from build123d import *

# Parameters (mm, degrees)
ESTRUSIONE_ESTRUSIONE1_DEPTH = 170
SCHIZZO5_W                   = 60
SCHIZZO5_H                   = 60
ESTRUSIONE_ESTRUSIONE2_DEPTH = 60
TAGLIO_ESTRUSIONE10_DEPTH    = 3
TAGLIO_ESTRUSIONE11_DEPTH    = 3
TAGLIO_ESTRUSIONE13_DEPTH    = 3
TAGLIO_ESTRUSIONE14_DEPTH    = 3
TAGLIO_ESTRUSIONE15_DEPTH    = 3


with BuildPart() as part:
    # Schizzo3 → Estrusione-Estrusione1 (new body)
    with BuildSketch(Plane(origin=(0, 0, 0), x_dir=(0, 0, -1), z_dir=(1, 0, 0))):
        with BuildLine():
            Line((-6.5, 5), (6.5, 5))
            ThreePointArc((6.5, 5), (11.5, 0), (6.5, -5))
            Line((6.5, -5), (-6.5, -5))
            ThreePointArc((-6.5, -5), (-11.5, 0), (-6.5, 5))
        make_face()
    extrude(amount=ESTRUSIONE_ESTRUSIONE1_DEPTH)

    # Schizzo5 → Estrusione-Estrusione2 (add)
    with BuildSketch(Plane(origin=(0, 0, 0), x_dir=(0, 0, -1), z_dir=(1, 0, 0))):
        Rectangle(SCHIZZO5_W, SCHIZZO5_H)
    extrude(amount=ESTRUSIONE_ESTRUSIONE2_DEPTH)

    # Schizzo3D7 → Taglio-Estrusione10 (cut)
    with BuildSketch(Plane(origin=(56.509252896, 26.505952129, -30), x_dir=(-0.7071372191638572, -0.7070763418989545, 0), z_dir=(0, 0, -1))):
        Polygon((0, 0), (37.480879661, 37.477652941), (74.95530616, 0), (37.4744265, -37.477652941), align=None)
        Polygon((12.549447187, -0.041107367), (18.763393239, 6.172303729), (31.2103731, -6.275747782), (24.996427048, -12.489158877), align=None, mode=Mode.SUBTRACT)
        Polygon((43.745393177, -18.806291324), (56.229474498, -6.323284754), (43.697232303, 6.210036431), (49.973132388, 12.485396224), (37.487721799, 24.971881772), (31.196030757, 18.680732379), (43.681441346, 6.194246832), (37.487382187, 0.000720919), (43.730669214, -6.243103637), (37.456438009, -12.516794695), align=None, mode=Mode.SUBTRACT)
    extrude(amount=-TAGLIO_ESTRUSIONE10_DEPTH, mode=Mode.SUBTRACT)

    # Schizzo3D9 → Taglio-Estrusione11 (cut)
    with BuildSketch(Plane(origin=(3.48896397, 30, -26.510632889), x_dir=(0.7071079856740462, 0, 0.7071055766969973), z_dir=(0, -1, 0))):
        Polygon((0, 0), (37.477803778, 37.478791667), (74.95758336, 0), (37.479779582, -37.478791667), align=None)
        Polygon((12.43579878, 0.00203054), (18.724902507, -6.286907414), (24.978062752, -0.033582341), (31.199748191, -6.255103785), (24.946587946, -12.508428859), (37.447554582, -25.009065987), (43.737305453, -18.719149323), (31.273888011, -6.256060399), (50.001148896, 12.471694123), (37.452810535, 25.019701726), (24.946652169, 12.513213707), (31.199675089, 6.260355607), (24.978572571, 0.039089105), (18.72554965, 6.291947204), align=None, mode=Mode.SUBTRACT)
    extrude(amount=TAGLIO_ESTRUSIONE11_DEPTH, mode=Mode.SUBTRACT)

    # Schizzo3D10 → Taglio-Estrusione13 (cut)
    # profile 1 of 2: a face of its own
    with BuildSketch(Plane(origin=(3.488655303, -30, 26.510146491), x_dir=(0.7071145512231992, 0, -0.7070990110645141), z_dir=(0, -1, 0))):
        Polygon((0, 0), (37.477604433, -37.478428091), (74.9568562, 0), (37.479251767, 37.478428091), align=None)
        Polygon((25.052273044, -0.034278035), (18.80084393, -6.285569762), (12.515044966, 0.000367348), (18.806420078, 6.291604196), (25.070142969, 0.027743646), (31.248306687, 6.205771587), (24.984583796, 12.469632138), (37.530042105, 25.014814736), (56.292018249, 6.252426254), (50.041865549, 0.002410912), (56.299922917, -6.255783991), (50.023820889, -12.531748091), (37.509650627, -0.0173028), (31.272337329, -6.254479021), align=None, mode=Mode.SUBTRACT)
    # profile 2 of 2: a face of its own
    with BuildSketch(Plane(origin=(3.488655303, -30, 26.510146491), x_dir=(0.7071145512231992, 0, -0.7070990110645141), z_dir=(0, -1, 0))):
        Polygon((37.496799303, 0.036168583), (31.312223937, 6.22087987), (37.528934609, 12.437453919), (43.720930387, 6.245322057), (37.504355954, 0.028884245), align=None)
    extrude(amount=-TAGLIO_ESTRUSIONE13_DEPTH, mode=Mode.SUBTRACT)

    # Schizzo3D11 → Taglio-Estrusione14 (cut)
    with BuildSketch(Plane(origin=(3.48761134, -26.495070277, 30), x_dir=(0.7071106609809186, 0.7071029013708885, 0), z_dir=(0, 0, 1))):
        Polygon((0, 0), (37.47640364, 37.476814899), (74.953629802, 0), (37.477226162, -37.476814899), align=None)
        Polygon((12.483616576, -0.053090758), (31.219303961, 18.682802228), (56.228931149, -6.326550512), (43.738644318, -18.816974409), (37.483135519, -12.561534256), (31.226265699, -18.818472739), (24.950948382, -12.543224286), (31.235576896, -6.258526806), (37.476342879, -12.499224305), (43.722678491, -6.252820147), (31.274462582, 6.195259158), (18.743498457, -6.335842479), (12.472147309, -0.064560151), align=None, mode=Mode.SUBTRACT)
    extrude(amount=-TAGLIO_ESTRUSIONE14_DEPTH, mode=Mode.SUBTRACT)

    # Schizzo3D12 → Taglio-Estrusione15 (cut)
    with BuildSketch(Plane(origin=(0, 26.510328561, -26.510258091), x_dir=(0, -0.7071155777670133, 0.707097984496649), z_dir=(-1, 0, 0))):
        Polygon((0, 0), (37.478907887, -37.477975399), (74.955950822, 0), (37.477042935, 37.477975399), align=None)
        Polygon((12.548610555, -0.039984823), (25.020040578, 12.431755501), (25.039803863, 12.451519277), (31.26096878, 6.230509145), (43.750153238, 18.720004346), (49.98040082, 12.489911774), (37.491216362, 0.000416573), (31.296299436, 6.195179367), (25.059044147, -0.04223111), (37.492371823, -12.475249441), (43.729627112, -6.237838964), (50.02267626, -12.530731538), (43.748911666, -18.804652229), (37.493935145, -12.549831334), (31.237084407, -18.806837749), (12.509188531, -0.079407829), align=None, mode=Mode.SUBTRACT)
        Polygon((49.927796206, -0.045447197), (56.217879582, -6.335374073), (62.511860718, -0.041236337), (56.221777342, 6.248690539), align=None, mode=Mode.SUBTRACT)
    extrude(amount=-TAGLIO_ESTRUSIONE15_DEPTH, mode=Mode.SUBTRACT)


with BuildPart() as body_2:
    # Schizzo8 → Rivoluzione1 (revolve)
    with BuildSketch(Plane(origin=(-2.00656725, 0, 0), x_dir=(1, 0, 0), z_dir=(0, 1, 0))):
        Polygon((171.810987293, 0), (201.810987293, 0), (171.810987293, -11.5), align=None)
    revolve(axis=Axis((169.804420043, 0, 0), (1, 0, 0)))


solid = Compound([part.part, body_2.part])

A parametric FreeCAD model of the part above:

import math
import FreeCAD as App
import Part
import Sketcher
from FreeCAD import Vector

doc = App.newDocument("Part")
body = doc.addObject("PartDesign::Body", "Body")

sketch1 = body.newObject("Sketcher::SketchObject", "Sketch")
sketch1.AttachmentSupport = (doc.getObject("YZ_Plane"), [""])
sketch1.MapMode = "FlatFace"
sketch1.addGeometry([
    Part.LineSegment(Vector(5, -6.5, 0), Vector(5, 6.5, 0)),
    Part.ArcOfCircle(Part.Circle(Vector(0, 6.5, 0), Vector(0, 0, 1), 5), math.radians(0), math.radians(180)),
    Part.LineSegment(Vector(-5, 6.5, 0), Vector(-5, -6.5, 0)),
    Part.ArcOfCircle(Part.Circle(Vector(0, -6.5, 0), Vector(0, 0, 1), 5), math.radians(180), math.radians(360)),
], False)
sketch1.addConstraint([
    Sketcher.Constraint("Tangent", 0, 2, 1, 1),
    Sketcher.Constraint("Tangent", 1, 2, 2, 1),
    Sketcher.Constraint("Tangent", 2, 2, 3, 1),
    Sketcher.Constraint("Tangent", 3, 2, 0, 1),
    Sketcher.Constraint("Vertical", 0),
    Sketcher.Constraint("Vertical", 2),
    Sketcher.Constraint("Symmetric", 1, 3, 3, 3, -1, 1),
    Sketcher.Constraint("Radius", 1, 5.0),
    Sketcher.Constraint("DistanceY", 0, 1, 0, 2, 13.0),
])
pad1 = body.newObject("PartDesign::Pad", "Pad")
pad1.Profile = sketch1
pad1.Length = 170

sketch2 = body.newObject("Sketcher::SketchObject", "Sketch001")
sketch2.AttachmentSupport = (doc.getObject("YZ_Plane"), [""])
sketch2.MapMode = "FlatFace"
sketch2.addGeometry([
    Part.LineSegment(Vector(30, 30, 0), Vector(-30, 30, 0)),
    Part.LineSegment(Vector(-30, 30, 0), Vector(-30, -30, 0)),
    Part.LineSegment(Vector(-30, -30, 0), Vector(30, -30, 0)),
    Part.LineSegment(Vector(30, -30, 0), Vector(30, 30, 0)),
], False)
sketch2.addConstraint([
    Sketcher.Constraint("Coincident", 0, 2, 1, 1),
    Sketcher.Constraint("Coincident", 1, 2, 2, 1),
    Sketcher.Constraint("Coincident", 2, 2, 3, 1),
    Sketcher.Constraint("Coincident", 3, 2, 0, 1),
    Sketcher.Constraint("Horizontal", 0),
    Sketcher.Constraint("Vertical", 1),
    Sketcher.Constraint("Horizontal", 2),
    Sketcher.Constraint("Vertical", 3),
    Sketcher.Constraint("Symmetric", 0, 2, 2, 2, -1, 1),
    Sketcher.Constraint("Equal", 2, 1),
    Sketcher.Constraint("DistanceX", 0, 2, 0, 1, 60.0),
])
pad2 = body.newObject("PartDesign::Pad", "Pad001")
pad2.Profile = sketch2
pad2.Length = 60

sketch3 = body.newObject("Sketcher::SketchObject", "Sketch002")
sketch3.AttachmentSupport = (doc.getObject("XY_Plane"), [""])
sketch3.MapMode = "FlatFace"
sketch3.AttachmentOffset = App.Placement(Vector(0, 0, -30), App.Rotation())
sketch3.addGeometry([
    Part.LineSegment(Vector(3.505566, 26.505952, 0), Vector(56.509253, 26.505952, 0)),
    Part.LineSegment(Vector(56.509253, 26.505952, 0), Vector(56.509253, -26.493172, 0)),
    Part.LineSegment(Vector(56.509253, -26.493172, 0), Vector(3.505566, -26.493172, 0)),
    Part.LineSegment(Vector(3.505566, -26.493172, 0), Vector(3.505566, 26.505952, 0)),
    Part.LineSegment(Vector(47.664138, 17.603466, 0), Vector(38.876669, 17.603466, 0)),
    Part.LineSegment(Vector(38.876669, 17.603466, 0), Vector(38.876669, 0.000021, 0)),
    Part.LineSegment(Vector(38.876669, 0.000021, 0), Vector(47.664138, 0.000021, 0)),
    Part.LineSegment(Vector(47.664138, 0.000021, 0), Vector(47.664138, 17.603466, 0)),
    Part.LineSegment(Vector(38.872741, -17.724009, 0), Vector(38.872741, -8.8297, 0)),
    Part.LineSegment(Vector(38.872741, -8.8297, 0), Vector(30.00002, -8.8297, 0)),
    Part.LineSegment(Vector(30.00002, -8.8297, 0), Vector(30.00002, 0.000021, 0)),
    Part.LineSegment(Vector(30.00002, 0.000021, 0), Vector(21.240675, 0.000021, 0)),
    Part.LineSegment(Vector(21.240675, 0.000021, 0), Vector(21.240675, 17.657818, 0)),
    Part.LineSegment(Vector(21.240675, 17.657818, 0), Vector(12.343263, 17.657818, 0)),
    Part.LineSegment(Vector(12.343263, 17.657818, 0), Vector(12.343263, 0.000021, 0)),
    Part.LineSegment(Vector(12.343263, 0.000021, 0), Vector(21.218344, 0.000021, 0)),
    Part.LineSegment(Vector(21.218344, 0.000021, 0), Vector(21.218344, -17.724009, 0)),
    Part.LineSegment(Vector(21.218344, -17.724009, 0), Vector(38.872741, -17.724009, 0)),
], False)
sketch3.addConstraint([
    Sketcher.Constraint("Coincident", 0, 2, 1, 1),
    Sketcher.Constraint("Coincident", 1, 2, 2, 1),
    Sketcher.Constraint("Coincident", 2, 2, 3, 1),
    Sketcher.Constraint("Coincident", 3, 2, 0, 1),
    Sketcher.Constraint("Coincident", 4, 2, 5, 1),
    Sketcher.Constraint("Coincident", 5, 2, 6, 1),
    Sketcher.Constraint("Coincident", 6, 2, 7, 1),
    Sketcher.Constraint("Coincident", 7, 2, 4, 1),
    Sketcher.Constraint("Coincident", 8, 2, 9, 1),
    Sketcher.Constraint("Coincident", 9, 2, 10, 1),
    Sketcher.Constraint("Coincident", 10, 2, 11, 1),
    Sketcher.Constraint("Coincident", 11, 2, 12, 1),
    Sketcher.Constraint("Coincident", 12, 2, 13, 1),
    Sketcher.Constraint("Coincident", 13, 2, 14, 1),
    Sketcher.Constraint("Coincident", 14, 2, 15, 1),
    Sketcher.Constraint("Coincident", 15, 2, 16, 1),
    Sketcher.Constraint("Coincident", 16, 2, 17, 1),
    Sketcher.Constraint("Coincident", 17, 2, 8, 1),
    Sketcher.Constraint("Horizontal", 0),
    Sketcher.Constraint("Vertical", 1),
    Sketcher.Constraint("Horizontal", 2),
    Sketcher.Constraint("Vertical", 3),
    Sketcher.Constraint("Horizontal", 4),
    Sketcher.Constraint("Vertical", 5),
    Sketcher.Constraint("Horizontal", 6),
    Sketcher.Constraint("Vertical", 7),
    Sketcher.Constraint("Vertical", 8),
    Sketcher.Constraint("Horizontal", 9),
    Sketcher.Constraint("Vertical", 10),
    Sketcher.Constraint("Horizontal", 11),
    Sketcher.Constraint("Vertical", 12),
    Sketcher.Constraint("Horizontal", 13),
    Sketcher.Constraint("Vertical", 14),
    Sketcher.Constraint("Horizontal", 15),
    Sketcher.Constraint("Vertical", 16),
    Sketcher.Constraint("Horizontal", 17),
    Sketcher.Constraint("Horizontal", 6, 2, 10, 2),
    Sketcher.Constraint("Horizontal", 11, 2, 14, 2),
    Sketcher.Constraint("DistanceX", 4, 2, 4, 1, 8.787469),
    Sketcher.Constraint("DistanceX", 9, 2, 9, 1, 8.872721),
    Sketcher.Constraint("DistanceX", 13, 2, 13, 1, 8.897412),
    Sketcher.Constraint("DistanceX", 15, 1, 15, 2, 8.875081),
    Sketcher.Constraint("DistanceY", 8, 1, 8, 2, 8.894309),
    Sketcher.Constraint("DistanceY", 10, 1, 10, 2, 8.829721),
    Sketcher.Constraint("DistanceY", 8, 2, -1, 1, 8.8297),
    Sketcher.Constraint("DistanceX", 0, 1, 0, 2, 53.003687),
    Sketcher.Constraint("DistanceX", 11, 2, 11, 1, 8.759345),
    Sketcher.Constraint("DistanceY", 1, 2, 1, 1, 52.999124),
    Sketcher.Constraint("DistanceY", 5, 2, 5, 1, 17.603446),
    Sketcher.Constraint("DistanceY", 12, 1, 12, 2, 17.657797),
    Sketcher.Constraint("DistanceY", 1, 2, -1, 1, 26.493172),
    Sketcher.Constraint("DistanceX", -1, 1, 4, 2, 38.876669),
    Sketcher.Constraint("DistanceX", -1, 1, 8, 2, 38.872741),
    Sketcher.Constraint("DistanceX", 2, 2, 6, 2, 44.158572),
])
pocket1 = body.newObject("PartDesign::Pocket", "Pocket")
pocket1.Profile = sketch3
pocket1.Length = 3
pocket1.Reversed = True

sketch4 = body.newObject("Sketcher::SketchObject", "Sketch003")
sketch4.AttachmentSupport = (doc.getObject("XZ_Plane"), [""])
sketch4.MapMode = "FlatFace"
sketch4.AttachmentOffset = App.Placement(Vector(0, 0, -30), App.Rotation())
sketch4.addGeometry([
    Part.LineSegment(Vector(3.488356, 26.491684, 0), Vector(3.488964, -26.510633, 0)),
    Part.LineSegment(Vector(3.488964, -26.510633, 0), Vector(56.492678, -26.510025, 0)),
    Part.LineSegment(Vector(56.492678, -26.510025, 0), Vector(56.49207, 26.492292, 0)),
    Part.LineSegment(Vector(56.49207, 26.492292, 0), Vector(3.488356, 26.491684, 0)),
    Part.LineSegment(Vector(12.280981, -17.715774, 0), Vector(12.280879, -8.820606, 0)),
    Part.LineSegment(Vector(12.280879, -8.820606, 0), Vector(21.123872, -8.820505, 0)),
    Part.LineSegment(Vector(21.123872, -8.820505, 0), Vector(21.123771, -0.022421, 0)),
    Part.LineSegment(Vector(21.123771, -0.022421, 0), Vector(12.280778, -0.022523, 0)),
    Part.LineSegment(Vector(12.280778, -0.022523, 0), Vector(12.280575, 17.664089, 0)),
    Part.LineSegment(Vector(12.280575, 17.664089, 0), Vector(30.026371, 17.664293, 0)),
    Part.LineSegment(Vector(30.026371, 17.664293, 0), Vector(30.026675, -8.820403, 0)),
    Part.LineSegment(Vector(30.026675, -8.820403, 0), Vector(47.652377, -8.8202, 0)),
    Part.LineSegment(Vector(47.652377, -8.8202, 0), Vector(47.652479, -17.715368, 0)),
    Part.LineSegment(Vector(47.652479, -17.715368, 0), Vector(29.973675, -17.715571, 0)),
    Part.LineSegment(Vector(29.973675, -17.715571, 0), Vector(29.973574, -8.872151, 0)),
    Part.LineSegment(Vector(29.973574, -8.872151, 0), Vector(21.174898, -8.872252, 0)),
    Part.LineSegment(Vector(21.174898, -8.872252, 0), Vector(21.174999, -17.715672, 0)),
    Part.LineSegment(Vector(21.174999, -17.715672, 0), Vector(12.280981, -17.715774, 0)),
], False)
sketch4.addConstraint([
    Sketcher.Constraint("Coincident", 0, 2, 1, 1),
    Sketcher.Constraint("Coincident", 1, 2, 2, 1),
    Sketcher.Constraint("Coincident", 2, 2, 3, 1),
    Sketcher.Constraint("Coincident", 3, 2, 0, 1),
    Sketcher.Constraint("Coincident", 4, 2, 5, 1),
    Sketcher.Constraint("Coincident", 5, 2, 6, 1),
    Sketcher.Constraint("Coincident", 6, 2, 7, 1),
    Sketcher.Constraint("Coincident", 7, 2, 8, 1),
    Sketcher.Constraint("Coincident", 8, 2, 9, 1),
    Sketcher.Constraint("Coincident", 9, 2, 10, 1),
    Sketcher.Constraint("Coincident", 10, 2, 11, 1),
    Sketcher.Constraint("Coincident", 11, 2, 12, 1),
    Sketcher.Constraint("Coincident", 12, 2, 13, 1),
    Sketcher.Constraint("Coincident", 13, 2, 14, 1),
    Sketcher.Constraint("Coincident", 14, 2, 15, 1),
    Sketcher.Constraint("Coincident", 15, 2, 16, 1),
    Sketcher.Constraint("Coincident", 16, 2, 17, 1),
    Sketcher.Constraint("Coincident", 17, 2, 4, 1),
    Sketcher.Constraint("Perpendicular", 0, 1),
    Sketcher.Constraint("Perpendicular", 1, 2),
    Sketcher.Constraint("Perpendicular", 2, 3),
    Sketcher.Constraint("Perpendicular", 3, 4),
    Sketcher.Constraint("Perpendicular", 4, 5),
    Sketcher.Constraint("Perpendicular", 5, 6),
    Sketcher.Constraint("Perpendicular", 6, 7),
    Sketcher.Constraint("Perpendicular", 7, 8),
    Sketcher.Constraint("Perpendicular", 8, 9),
    Sketcher.Constraint("Perpendicular", 9, 10),
    Sketcher.Constraint("Perpendicular", 10, 11),
    Sketcher.Constraint("Perpendicular", 11, 12),
    Sketcher.Constraint("Perpendicular", 12, 13),
    Sketcher.Constraint("Perpendicular", 13, 14),
    Sketcher.Constraint("Perpendicular", 14, 15),
    Sketcher.Constraint("Perpendicular", 15, 16),
    Sketcher.Constraint("Perpendicular", 16, 17),
    Sketcher.Constraint("Equal", 5, 7),
    Sketcher.Constraint("Equal", 4, 12),
    Sketcher.Constraint("Equal", 14, 16),
    Sketcher.Constraint("DistanceX", -1, 1, 16, 2, 21.174999),
    Sketcher.Constraint("DistanceY", 9, 2, 2, 2, 8.827999),
    Sketcher.Constraint("DistanceX", 13, 2, 10, 2, 0.053),
    Sketcher.Constraint("Distance", 11, 17.625702),
    Sketcher.Constraint("DistanceY", 11, 2, -1, 1, 8.8202),
    Sketcher.Constraint("DistanceX", 4, 2, 1, 2, 44.211799),
    Sketcher.Constraint("DistanceY", 4, 2, 2, 2, 35.312899),
    Sketcher.Constraint("DistanceY", 4, 2, 5, 2, 0.000101),
    Sketcher.Constraint("DistanceX", 6, 2, 9, 2, 8.9026),
    Sketcher.Constraint("DistanceX", 9, 2, 2, 2, 26.465699),
    Sketcher.Constraint("Distance", 4, 8.895168),
    Sketcher.Constraint("Distance", 8, 17.686612),
    Sketcher.Constraint("Distance", 14, 8.843421),
    Sketcher.Constraint("Distance", 17, 8.894019),
    Sketcher.Constraint("DistanceY", 1, 2, 3, 2, 53.001709),
    Sketcher.Constraint("DistanceX", 0, 2, 5, 2, 17.634908),
])
pocket2 = body.newObject("PartDesign::Pocket", "Pocket001")
pocket2.Profile = sketch4
pocket2.Length = 3
pocket2.Reversed = True

sketch5 = body.newObject("Sketcher::SketchObject", "Sketch004")
sketch5.AttachmentSupport = (doc.getObject("XZ_Plane"), [""])
sketch5.MapMode = "FlatFace"
sketch5.AttachmentOffset = App.Placement(Vector(0, 0, 30), App.Rotation())
sketch5.addGeometry([
    Part.LineSegment(Vector(3.488655, 26.510146, 0), Vector(3.488655, -26.491772, 0)),
    Part.LineSegment(Vector(3.488655, -26.491772, 0), Vector(56.491739, -26.491772, 0)),
    Part.LineSegment(Vector(56.491739, -26.491772, 0), Vector(56.491739, 26.510146, 0)),
    Part.LineSegment(Vector(56.491739, 26.510146, 0), Vector(3.488655, 26.510146, 0)),
    Part.LineSegment(Vector(21.179244, -0.025125, 0), Vector(21.179244, 8.771471, 0)),
    Part.LineSegment(Vector(21.179244, 8.771471, 0), Vector(12.338485, 8.771471, 0)),
    Part.LineSegment(Vector(12.338485, 8.771471, 0), Vector(12.338485, 17.66103, 0)),
    Part.LineSegment(Vector(12.338485, 17.66103, 0), Vector(21.235736, 17.66103, 0)),
    Part.LineSegment(Vector(21.235736, 17.66103, 0), Vector(21.235736, 8.802691, 0)),
    Part.LineSegment(Vector(21.235736, 8.802691, 0), Vector(29.972883, 8.802691, 0)),
    Part.LineSegment(Vector(29.972883, 8.802691, 0), Vector(29.972883, 17.66103, 0)),
    Part.LineSegment(Vector(29.972883, 17.66103, 0), Vector(47.714645, 17.66103, 0)),
    Part.LineSegment(Vector(47.714645, 17.66103, 0), Vector(47.714645, -8.872702, 0)),
    Part.LineSegment(Vector(47.714645, -8.872702, 0), Vector(38.875691, -8.872702, 0)),
    Part.LineSegment(Vector(38.875691, -8.872702, 0), Vector(38.875691, -17.723029, 0)),
    Part.LineSegment(Vector(38.875691, -17.723029, 0), Vector(30.00004, -17.723029, 0)),
    Part.LineSegment(Vector(30.00004, -17.723029, 0), Vector(30.00004, -0.025125, 0)),
    Part.LineSegment(Vector(30.00004, -0.025125, 0), Vector(21.179244, -0.025125, 0)),
    Part.LineSegment(Vector(30.028762, 8.768179, 0), Vector(30.028762, 0.021772, 0)),
    Part.LineSegment(Vector(30.028762, 0.021772, 0), Vector(30.028955, 0.011278, 0)),
    Part.LineSegment(Vector(30.028955, 0.011278, 0), Vector(38.820422, 0.011278, 0)),
    Part.LineSegment(Vector(38.820422, 0.011278, 0), Vector(38.820422, 8.768179, 0)),
    Part.LineSegment(Vector(38.820422, 8.768179, 0), Vector(30.028762, 8.768179, 0)),
], False)
sketch5.addConstraint([
    Sketcher.Constraint("Coincident", 0, 2, 1, 1),
    Sketcher.Constraint("Coincident", 1, 2, 2, 1),
    Sketcher.Constraint("Coincident", 2, 2, 3, 1),
    Sketcher.Constraint("Coincident", 3, 2, 0, 1),
    Sketcher.Constraint("Coincident", 4, 2, 5, 1),
    Sketcher.Constraint("Coincident", 5, 2, 6, 1),
    Sketcher.Constraint("Coincident", 6, 2, 7, 1),
    Sketcher.Constraint("Coincident", 7, 2, 8, 1),
    Sketcher.Constraint("Coincident", 8, 2, 9, 1),
    Sketcher.Constraint("Coincident", 9, 2, 10, 1),
    Sketcher.Constraint("Coincident", 10, 2, 11, 1),
    Sketcher.Constraint("Coincident", 11, 2, 12, 1),
    Sketcher.Constraint("Coincident", 12, 2, 13, 1),
    Sketcher.Constraint("Coincident", 13, 2, 14, 1),
    Sketcher.Constraint("Coincident", 14, 2, 15, 1),
    Sketcher.Constraint("Coincident", 15, 2, 16, 1),
    Sketcher.Constraint("Coincident", 16, 2, 17, 1),
    Sketcher.Constraint("Coincident", 17, 2, 4, 1),
    Sketcher.Constraint("Coincident", 18, 2, 19, 1),
    Sketcher.Constraint("Coincident", 19, 2, 20, 1),
    Sketcher.Constraint("Coincident", 20, 2, 21, 1),
    Sketcher.Constraint("Coincident", 21, 2, 22, 1),
    Sketcher.Constraint("Coincident", 22, 2, 18, 1),
    Sketcher.Constraint("Vertical", 0),
    Sketcher.Constraint("Horizontal", 1),
    Sketcher.Constraint("Vertical", 2),
    Sketcher.Constraint("Horizontal", 3),
    Sketcher.Constraint("Vertical", 4),
    Sketcher.Constraint("Horizontal", 5),
    Sketcher.Constraint("Vertical", 6),
    Sketcher.Constraint("Horizontal", 7),
    Sketcher.Constraint("Vertical", 8),
    Sketcher.Constraint("Horizontal", 9),
    Sketcher.Constraint("Vertical", 10),
    Sketcher.Constraint("Horizontal", 11),
    Sketcher.Constraint("Vertical", 12),
    Sketcher.Constraint("Horizontal", 13),
    Sketcher.Constraint("Vertical", 14),
    Sketcher.Constraint("Horizontal", 15),
    Sketcher.Constraint("Vertical", 16),
    Sketcher.Constraint("Horizontal", 17),
    Sketcher.Constraint("Vertical", 18),
    Sketcher.Constraint("Horizontal", 20),
    Sketcher.Constraint("Vertical", 21),
    Sketcher.Constraint("Horizontal", 22),
    Sketcher.Constraint("Horizontal", 7, 2, 10, 2),
    Sketcher.Constraint("DistanceY", 21, 1, 21, 2, 8.756901),
    Sketcher.Constraint("DistanceX", 5, 2, 5, 1, 8.840759),
    Sketcher.Constraint("DistanceX", 7, 1, 7, 2, 8.89725),
    Sketcher.Constraint("DistanceX", 15, 2, 15, 1, 8.875651),
    Sketcher.Constraint("DistanceX", 22, 2, 22, 1, 8.79166),
    Sketcher.Constraint("DistanceY", 0, 2, 0, 1, 53.001919),
    Sketcher.Constraint("DistanceY", 6, 1, 6, 2, 8.88956),
    Sketcher.Constraint("DistanceY", 8, 2, 8, 1, 8.858339),
    Sketcher.Constraint("DistanceX", 4, 2, 12, 2, 26.535401),
    Sketcher.Constraint("DistanceX", 15, 2, 1, 2, 26.491699),
    Sketcher.Constraint("DistanceY", 18, 2, 4, 2, 8.749698),
    Sketcher.Constraint("DistanceX", 1, 1, 1, 2, 53.003084),
    Sketcher.Constraint("DistanceX", 9, 1, 9, 2, 8.737147),
    Sketcher.Constraint("DistanceX", 13, 2, 13, 1, 8.838954),
    Sketcher.Constraint("DistanceX", 20, 1, 20, 2, 8.791467),
    Sketcher.Constraint("DistanceY", 4, 1, 4, 2, 8.796596),
    Sketcher.Constraint("DistanceY", 12, 2, 12, 1, 26.533733),
    Sketcher.Constraint("DistanceY", 14, 2, 14, 1, 8.850327),
    Sketcher.Constraint("DistanceY", 18, 2, 18, 1, 8.746406),
    Sketcher.Constraint("DistanceX", -1, 1, 1, 2, 56.491739),
    Sketcher.Constraint("DistanceY", -1, 1, 4, 2, 8.771471),
    Sketcher.Constraint("DistanceY", 1, 2, 12, 2, 17.61907),
    Sketcher.Constraint("DistanceX", 9, 2, 18, 2, 0.05588),
])
pocket3 = body.newObject("PartDesign::Pocket", "Pocket002")
pocket3.Profile = sketch5
pocket3.Length = 3

sketch6 = body.newObject("Sketcher::SketchObject", "Sketch005")
sketch6.AttachmentSupport = (doc.getObject("XY_Plane"), [""])
sketch6.MapMode = "FlatFace"
sketch6.AttachmentOffset = App.Placement(Vector(0, 0, 30), App.Rotation())
sketch6.addGeometry([
    Part.LineSegment(Vector(3.487611, 26.504859, 0), Vector(3.487611, -26.49507, 0)),
    Part.LineSegment(Vector(3.487611, -26.49507, 0), Vector(56.488122, -26.49507, 0)),
    Part.LineSegment(Vector(56.488122, -26.49507, 0), Vector(56.488122, 26.504859, 0)),
    Part.LineSegment(Vector(56.488122, 26.504859, 0), Vector(3.487611, 26.504859, 0)),
    Part.LineSegment(Vector(12.35245, -17.70541, 0), Vector(12.35245, 8.790999, 0)),
    Part.LineSegment(Vector(12.35245, 8.790999, 0), Vector(47.72121, 8.790999, 0)),
    Part.LineSegment(Vector(47.72121, 8.790999, 0), Vector(47.72121, -8.873031, 0)),
    Part.LineSegment(Vector(47.72121, -8.873031, 0), Vector(38.874633, -8.873031, 0)),
    Part.LineSegment(Vector(38.874633, -8.873031, 0), Vector(38.874633, -17.72163, 0)),
    Part.LineSegment(Vector(38.874633, -17.72163, 0), Vector(30.000043, -17.72163, 0)),
    Part.LineSegment(Vector(30.000043, -17.72163, 0), Vector(30.000043, -8.833774, 0)),
    Part.LineSegment(Vector(30.000043, -8.833774, 0), Vector(38.825771, -8.833774, 0)),
    Part.LineSegment(Vector(38.825771, -8.833774, 0), Vector(38.825771, -0.000073, 0)),
    Part.LineSegment(Vector(38.825771, -0.000073, 0), Vector(21.221432, -0.000073, 0)),
    Part.LineSegment(Vector(21.221432, -0.000073, 0), Vector(21.221432, -17.72163, 0)),
    Part.LineSegment(Vector(21.221432, -17.72163, 0), Vector(12.35245, -17.72163, 0)),
    Part.LineSegment(Vector(12.35245, -17.72163, 0), Vector(12.35245, -17.70541, 0)),
], False)
sketch6.addConstraint([
    Sketcher.Constraint("Coincident", 0, 2, 1, 1),
    Sketcher.Constraint("Coincident", 1, 2, 2, 1),
    Sketcher.Constraint("Coincident", 2, 2, 3, 1),
    Sketcher.Constraint("Coincident", 3, 2, 0, 1),
    Sketcher.Constraint("Coincident", 4, 2, 5, 1),
    Sketcher.Constraint("Coincident", 5, 2, 6, 1),
    Sketcher.Constraint("Coincident", 6, 2, 7, 1),
    Sketcher.Constraint("Coincident", 7, 2, 8, 1),
    Sketcher.Constraint("Coincident", 8, 2, 9, 1),
    Sketcher.Constraint("Coincident", 9, 2, 10, 1),
    Sketcher.Constraint("Coincident", 10, 2, 11, 1),
    Sketcher.Constraint("Coincident", 11, 2, 12, 1),
    Sketcher.Constraint("Coincident", 12, 2, 13, 1),
    Sketcher.Constraint("Coincident", 13, 2, 14, 1),
    Sketcher.Constraint("Coincident", 14, 2, 15, 1),
    Sketcher.Constraint("Coincident", 15, 2, 16, 1),
    Sketcher.Constraint("Coincident", 16, 2, 4, 1),
    Sketcher.Constraint("Vertical", 0),
    Sketcher.Constraint("Horizontal", 1),
    Sketcher.Constraint("Vertical", 2),
    Sketcher.Constraint("Horizontal", 3),
    Sketcher.Constraint("Vertical", 4),
    Sketcher.Constraint("Horizontal", 5),
    Sketcher.Constraint("Vertical", 6),
    Sketcher.Constraint("Horizontal", 7),
    Sketcher.Constraint("Vertical", 8),
    Sketcher.Constraint("Horizontal", 9),
    Sketcher.Constraint("Vertical", 10),
    Sketcher.Constraint("Horizontal", 11),
    Sketcher.Constraint("Vertical", 12),
    Sketcher.Constraint("Horizontal", 13),
    Sketcher.Constraint("Vertical", 14),
    Sketcher.Constraint("Horizontal", 15),
    Sketcher.Constraint("Vertical", 16),
    Sketcher.Constraint("Horizontal", 9, 2, 14, 2),
    Sketcher.Constraint("DistanceY", 8, 2, 8, 1, 8.848599),
    Sketcher.Constraint("DistanceY", 12, 1, 12, 2, 8.833701),
    Sketcher.Constraint("DistanceY", -1, 1, 4, 2, 8.790999),
    Sketcher.Constraint("DistanceX", 1, 1, 1, 2, 53.000511),
    Sketcher.Constraint("DistanceX", 5, 1, 5, 2, 35.36876),
    Sketcher.Constraint("DistanceX", 9, 2, 9, 1, 8.87459),
    Sketcher.Constraint("DistanceX", 13, 2, 13, 1, 17.604339),
    Sketcher.Constraint("DistanceX", 15, 2, 15, 1, 8.868981),
    Sketcher.Constraint("DistanceY", 0, 2, 0, 1, 52.999929),
    Sketcher.Constraint("DistanceY", 4, 1, 4, 2, 26.496409),
    Sketcher.Constraint("DistanceY", 6, 2, 6, 1, 17.66403),
    Sketcher.Constraint("DistanceX", 3, 2, 5, 2, 44.233599),
    Sketcher.Constraint("DistanceX", 13, 2, 7, 2, 17.653202),
    Sketcher.Constraint("DistanceY", 10, 1, 10, 2, 8.887856),
    Sketcher.Constraint("DistanceX", -1, 1, 0, 2, 3.487611),
    Sketcher.Constraint("DistanceY", 0, 2, -1, 1, 26.49507),
])
pocket4 = body.newObject("PartDesign::Pocket", "Pocket003")
pocket4.Profile = sketch6
pocket4.Length = 3

sketch7 = body.newObject("Sketcher::SketchObject", "Sketch006")
sketch7.AttachmentSupport = (doc.getObject("YZ_Plane"), [""])
sketch7.MapMode = "FlatFace"
sketch7.addGeometry([
    Part.LineSegment(Vector(26.510329, -26.510258, 0), Vector(-26.492192, -26.510258, 0)),
    Part.LineSegment(Vector(-26.492192, -26.510258, 0), Vector(-26.492192, 26.490944, 0)),
    Part.LineSegment(Vector(-26.492192, 26.490944, 0), Vector(26.510329, 26.490944, 0)),
    Part.LineSegment(Vector(26.510329, 26.490944, 0), Vector(26.510329, -26.510258, 0)),
    Part.LineSegment(Vector(17.608737, -17.721187, 0), Vector(17.608737, -17.665435, 0)),
    Part.LineSegment(Vector(17.608737, -17.665435, 0), Vector(17.608737, -0.02795, 0)),
    Part.LineSegment(Vector(17.608737, -0.02795, 0), Vector(17.608737, 0, 0)),
    Part.LineSegment(Vector(17.608737, 0, 0), Vector(8.810791, 0, 0)),
    Part.LineSegment(Vector(8.810791, 0, 0), Vector(8.810791, 17.662594, 0)),
    Part.LineSegment(Vector(8.810791, 17.662594, 0), Vector(0, 17.662594, 0)),
    Part.LineSegment(Vector(0, 17.662594, 0), Vector(0, 0, 0)),
    Part.LineSegment(Vector(0, 0, 0), Vector(8.760827, 0, 0)),
    Part.LineSegment(Vector(8.760827, 0, 0), Vector(8.760827, -8.820921, 0)),
    Part.LineSegment(Vector(8.760827, -8.820921, 0), Vector(-8.822335, -8.820921, 0)),
    Part.LineSegment(Vector(-8.822335, -8.820921, 0), Vector(-8.822335, 0, 0)),
    Part.LineSegment(Vector(-8.822335, 0, 0), Vector(-17.72194, 0, 0)),
    Part.LineSegment(Vector(-17.72194, 0, 0), Vector(-17.72194, -8.872553, 0)),
    Part.LineSegment(Vector(-17.72194, -8.872553, 0), Vector(-8.876177, -8.872553, 0)),
    Part.LineSegment(Vector(-8.876177, -8.872553, 0), Vector(-8.876177, -17.721187, 0)),
    Part.LineSegment(Vector(-8.876177, -17.721187, 0), Vector(17.608737, -17.721187, 0)),
    Part.LineSegment(Vector(-17.72194, 8.76145, 0), Vector(-8.82653, 8.76145, 0)),
    Part.LineSegment(Vector(-8.82653, 8.76145, 0), Vector(-8.82653, 17.662594, 0)),
    Part.LineSegment(Vector(-8.82653, 17.662594, 0), Vector(-17.72194, 17.662594, 0)),
    Part.LineSegment(Vector(-17.72194, 17.662594, 0), Vector(-17.72194, 8.76145, 0)),
], False)
sketch7.addConstraint([
    Sketcher.Constraint("Coincident", 0, 2, 1, 1),
    Sketcher.Constraint("Coincident", 1, 2, 2, 1),
    Sketcher.Constraint("Coincident", 2, 2, 3, 1),
    Sketcher.Constraint("Coincident", 3, 2, 0, 1),
    Sketcher.Constraint("Coincident", 4, 2, 5, 1),
    Sketcher.Constraint("Coincident", 5, 2, 6, 1),
    Sketcher.Constraint("Coincident", 6, 2, 7, 1),
    Sketcher.Constraint("Coincident", 7, 2, 8, 1),
    Sketcher.Constraint("Coincident", 8, 2, 9, 1),
    Sketcher.Constraint("Coincident", 9, 2, 10, 1),
    Sketcher.Constraint("Coincident", 10, 2, 11, 1),
    Sketcher.Constraint("Coincident", 11, 2, 12, 1),
    Sketcher.Constraint("Coincident", 12, 2, 13, 1),
    Sketcher.Constraint("Coincident", 13, 2, 14, 1),
    Sketcher.Constraint("Coincident", 14, 2, 15, 1),
    Sketcher.Constraint("Coincident", 15, 2, 16, 1),
    Sketcher.Constraint("Coincident", 16, 2, 17, 1),
    Sketcher.Constraint("Coincident", 17, 2, 18, 1),
    Sketcher.Constraint("Coincident", 18, 2, 19, 1),
    Sketcher.Constraint("Coincident", 19, 2, 4, 1),
    Sketcher.Constraint("Coincident", 20, 2, 21, 1),
    Sketcher.Constraint("Coincident", 21, 2, 22, 1),
    Sketcher.Constraint("Coincident", 22, 2, 23, 1),
    Sketcher.Constraint("Coincident", 23, 2, 20, 1),
    Sketcher.Constraint("Horizontal", 0),
    Sketcher.Constraint("Vertical", 1),
    Sketcher.Constraint("Horizontal", 2),
    Sketcher.Constraint("Vertical", 3),
    Sketcher.Constraint("Vertical", 4),
    Sketcher.Constraint("Vertical", 5),
    Sketcher.Constraint("Vertical", 6),
    Sketcher.Constraint("Horizontal", 7),
    Sketcher.Constraint("Vertical", 8),
    Sketcher.Constraint("Horizontal", 9),
    Sketcher.Constraint("Vertical", 10),
    Sketcher.Constraint("Horizontal", 11),
    Sketcher.Constraint("Vertical", 12),
    Sketcher.Constraint("Horizontal", 13),
    Sketcher.Constraint("Vertical", 14),
    Sketcher.Constraint("Horizontal", 15),
    Sketcher.Constraint("Vertical", 16),
    Sketcher.Constraint("Horizontal", 17),
    Sketcher.Constraint("Vertical", 18),
    Sketcher.Constraint("Horizontal", 19),
    Sketcher.Constraint("Horizontal", 20),
    Sketcher.Constraint("Vertical", 21),
    Sketcher.Constraint("Horizontal", 22),
    Sketcher.Constraint("Vertical", 23),
    Sketcher.Constraint("Coincident", 10, 2, -1, 1),
    Sketcher.Constraint("PointOnObject", 6, 2, -1),
    Sketcher.Constraint("PointOnObject", 14, 2, -1),
    Sketcher.Constraint("Horizontal", 9, 2, 21, 2),
    Sketcher.Constraint("Vertical", 16, 2, 22, 2),
    Sketcher.Constraint("DistanceY", 1, 1, 1, 2, 53.001202),
    Sketcher.Constraint("DistanceX", 0, 2, 0, 1, 53.00252),
    Sketcher.Constraint("DistanceX", 9, 2, 9, 1, 8.810791),
    Sketcher.Constraint("DistanceX", 13, 2, 13, 1, 17.583162),
    Sketcher.Constraint("DistanceX", 20, 1, 20, 2, 8.895411),
    Sketcher.Constraint("DistanceY", 4, 1, 4, 2, 0.055752),
    Sketcher.Constraint("DistanceY", 6, 1, 6, 2, 0.02795),
    Sketcher.Constraint("DistanceY", 12, 2, 12, 1, 8.820921),
    Sketcher.Constraint("DistanceX", 7, 2, 7, 1, 8.797946),
    Sketcher.Constraint("DistanceX", 11, 1, 11, 2, 8.760827),
    Sketcher.Constraint("DistanceX", 15, 2, 15, 1, 8.899605),
    Sketcher.Constraint("DistanceX", 17, 1, 17, 2, 8.845763),
    Sketcher.Constraint("DistanceY", 5, 1, 5, 2, 17.637485),
    Sketcher.Constraint("DistanceY", 8, 1, 8, 2, 17.662594),
    Sketcher.Constraint("DistanceY", 16, 2, 16, 1, 8.872553),
    Sketcher.Constraint("DistanceY", 21, 1, 21, 2, 8.901144),
    Sketcher.Constraint("DistanceX", 0, 2, -1, 1, 26.492192),
    Sketcher.Constraint("DistanceY", 0, 2, -1, 1, 26.510258),
])
pocket5 = body.newObject("PartDesign::Pocket", "Pocket004")
pocket5.Profile = sketch7
pocket5.Length = 3
pocket5.Reversed = True
body2 = doc.addObject("PartDesign::Body", "Body001")

sketch8 = body2.newObject("Sketcher::SketchObject", "Sketch007")
sketch8.AttachmentSupport = (doc.getObject("XZ_Plane001"), [""])
sketch8.MapMode = "FlatFace"
sketch8.addGeometry([
    Part.LineSegment(Vector(199.80442, 0, 0), Vector(169.80442, 0, 0)),
    Part.LineSegment(Vector(169.80442, 0, 0), Vector(169.80442, 11.5, 0)),
    Part.LineSegment(Vector(169.80442, 11.5, 0), Vector(199.80442, 0, 0)),
], False)
sketch8.addConstraint([
    Sketcher.Constraint("Coincident", 0, 2, 1, 1),
    Sketcher.Constraint("Coincident", 1, 2, 2, 1),
    Sketcher.Constraint("Coincident", 2, 2, 0, 1),
    Sketcher.Constraint("Horizontal", 0),
    Sketcher.Constraint("Vertical", 1),
    Sketcher.Constraint("PointOnObject", 0, 2, -1),
    Sketcher.Constraint("DistanceX", 0, 2, 0, 1, 30.0),
    Sketcher.Constraint("DistanceY", 1, 1, 1, 2, 11.5),
    Sketcher.Constraint("DistanceX", -1, 1, 0, 2, 169.80442),
])
revolution = body2.newObject("PartDesign::Revolution", "Revolution")
revolution.Profile = sketch8
revolution.ReferenceAxis = (sketch8, ["H_Axis"])
revolution.Angle = 360

doc.recompute()
